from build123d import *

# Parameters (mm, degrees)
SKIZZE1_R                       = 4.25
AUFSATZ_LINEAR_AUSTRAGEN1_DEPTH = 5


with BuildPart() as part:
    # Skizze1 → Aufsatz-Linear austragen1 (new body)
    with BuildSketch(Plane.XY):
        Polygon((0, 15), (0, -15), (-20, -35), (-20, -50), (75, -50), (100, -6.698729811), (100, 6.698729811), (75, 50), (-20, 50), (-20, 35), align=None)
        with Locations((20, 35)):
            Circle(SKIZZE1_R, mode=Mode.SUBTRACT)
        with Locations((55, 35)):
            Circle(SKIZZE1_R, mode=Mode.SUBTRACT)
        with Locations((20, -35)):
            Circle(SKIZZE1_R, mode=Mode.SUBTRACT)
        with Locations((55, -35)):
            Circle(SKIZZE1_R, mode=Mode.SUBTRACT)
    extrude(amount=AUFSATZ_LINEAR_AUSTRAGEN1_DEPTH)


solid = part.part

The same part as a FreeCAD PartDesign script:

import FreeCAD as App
import Part
import Sketcher
from FreeCAD import Vector
Q = App.Units.Quantity


def add_polygon(sketch, points):
    """Adds a closed chain of lines whose ends are joined by coincident constraints."""
    first, n = sketch.GeometryCount, len(points)
    for a, b in zip(points, points[1:] + points[:1]):
        sketch.addGeometry(Part.LineSegment(App.Vector(*a, 0), App.Vector(*b, 0)), False)
    for i in range(n):
        sketch.addConstraint(Sketcher.Constraint("Coincident", first + i, 2, first + (i + 1) % n, 1))

doc = App.newDocument("Part")
body = doc.addObject("PartDesign::Body", "Body")

sketch1 = body.newObject("Sketcher::SketchObject", "Sketch")
sketch1.AttachmentSupport = (doc.getObject("XY_Plane"), [""])
sketch1.MapMode = "FlatFace"
add_polygon(sketch1, [(0, 15), (0, -15), (-20, -35), (-20, -50), (75, -50), (100, -6.7), (100, 6.7), (75, 50), (-20, 50), (-20, 35)])
sketch1.addGeometry(Part.Circle(Vector(20, -35, 0), Vector(0, 0, 1), 4.2), False)
sketch1.addGeometry(Part.Circle(Vector(55, -35, 0), Vector(0, 0, 1), 4.2), False)
sketch1.addGeometry(Part.Circle(Vector(20, 35, 0), Vector(0, 0, 1), 4.2), False)
sketch1.addGeometry(Part.Circle(Vector(55, 35, 0), Vector(0, 0, 1), 4.2), False)
sketch1.addConstraint(Sketcher.Constraint("Vertical", 0))
sketch1.addConstraint(Sketcher.Constraint("Vertical", 2))
sketch1.addConstraint(Sketcher.Constraint("Horizontal", 3))
sketch1.addConstraint(Sketcher.Constraint("Vertical", 5))
sketch1.addConstraint(Sketcher.Constraint("Horizontal", 7))
sketch1.addConstraint(Sketcher.Constraint("Vertical", 8))
sketch1.addConstraint(Sketcher.Constraint("Equal", 10, 11))
sketch1.addConstraint(Sketcher.Constraint("Equal", 11, 12))
sketch1.addConstraint(Sketcher.Constraint("Equal", 12, 13))
sketch1.addConstraint(Sketcher.Constraint("Symmetric", 0, 2, 9, 2, -1, 1))
sketch1.addConstraint(Sketcher.Constraint("Symmetric", 10, 3, 12, 3, -1))
sketch1.addConstraint(Sketcher.Constraint("Symmetric", 11, 3, 13, 3, -1))
sketch1.addConstraint(Sketcher.Constraint("Symmetric", 3, 2, 6, 2, -1))
sketch1.addConstraint(Sketcher.Constraint("Symmetric", 1, 2, 8, 2, -1))
sketch1.addConstraint(Sketcher.Constraint("Perpendicular", 1, 9))
sketch1.addConstraint(Sketcher.Constraint("Horizontal", 10, 3, 11, 3))
sketch1.addConstraint(Sketcher.Constraint("Horizontal", 11, 3, 1, 2))
sketch1.addConstraint(Sketcher.Constraint("Equal", 4, 6))
sketch1.addConstraint(Sketcher.Constraint("Diameter", 10, Q("8.5 mm")))
sketch1.addConstraint(Sketcher.Constraint("DistanceX", 3, 1, 3, 2, Q("95 mm")))
sketch1.addConstraint(Sketcher.Constraint("DistanceY", 0, 2, 0, 1, Q("30 mm")))
sketch1.addConstraint(Sketcher.Constraint("DistanceY", 2, 2, 2, 1, Q("15 mm")))
sketch1.addConstraint(Sketcher.Constraint("Angle", 4, Q("60 deg")))
sketch1.addConstraint(Sketcher.Constraint("Distance", 4, Q("50 mm")))
sketch1.addConstraint(Sketcher.Constraint("DistanceX", -1, 1, 10, 3, Q("20 mm")))
sketch1.addConstraint(Sketcher.Constraint("DistanceY", 10, 3, -1, 1, Q("35 mm")))
sketch1.addConstraint(Sketcher.Constraint("DistanceX", -1, 1, 11, 3, Q("55 mm")))
pad1 = body.newObject("PartDesign::Pad", "Pad")
pad1.Profile = sketch1
pad1.Length = 5

doc.recompute()
